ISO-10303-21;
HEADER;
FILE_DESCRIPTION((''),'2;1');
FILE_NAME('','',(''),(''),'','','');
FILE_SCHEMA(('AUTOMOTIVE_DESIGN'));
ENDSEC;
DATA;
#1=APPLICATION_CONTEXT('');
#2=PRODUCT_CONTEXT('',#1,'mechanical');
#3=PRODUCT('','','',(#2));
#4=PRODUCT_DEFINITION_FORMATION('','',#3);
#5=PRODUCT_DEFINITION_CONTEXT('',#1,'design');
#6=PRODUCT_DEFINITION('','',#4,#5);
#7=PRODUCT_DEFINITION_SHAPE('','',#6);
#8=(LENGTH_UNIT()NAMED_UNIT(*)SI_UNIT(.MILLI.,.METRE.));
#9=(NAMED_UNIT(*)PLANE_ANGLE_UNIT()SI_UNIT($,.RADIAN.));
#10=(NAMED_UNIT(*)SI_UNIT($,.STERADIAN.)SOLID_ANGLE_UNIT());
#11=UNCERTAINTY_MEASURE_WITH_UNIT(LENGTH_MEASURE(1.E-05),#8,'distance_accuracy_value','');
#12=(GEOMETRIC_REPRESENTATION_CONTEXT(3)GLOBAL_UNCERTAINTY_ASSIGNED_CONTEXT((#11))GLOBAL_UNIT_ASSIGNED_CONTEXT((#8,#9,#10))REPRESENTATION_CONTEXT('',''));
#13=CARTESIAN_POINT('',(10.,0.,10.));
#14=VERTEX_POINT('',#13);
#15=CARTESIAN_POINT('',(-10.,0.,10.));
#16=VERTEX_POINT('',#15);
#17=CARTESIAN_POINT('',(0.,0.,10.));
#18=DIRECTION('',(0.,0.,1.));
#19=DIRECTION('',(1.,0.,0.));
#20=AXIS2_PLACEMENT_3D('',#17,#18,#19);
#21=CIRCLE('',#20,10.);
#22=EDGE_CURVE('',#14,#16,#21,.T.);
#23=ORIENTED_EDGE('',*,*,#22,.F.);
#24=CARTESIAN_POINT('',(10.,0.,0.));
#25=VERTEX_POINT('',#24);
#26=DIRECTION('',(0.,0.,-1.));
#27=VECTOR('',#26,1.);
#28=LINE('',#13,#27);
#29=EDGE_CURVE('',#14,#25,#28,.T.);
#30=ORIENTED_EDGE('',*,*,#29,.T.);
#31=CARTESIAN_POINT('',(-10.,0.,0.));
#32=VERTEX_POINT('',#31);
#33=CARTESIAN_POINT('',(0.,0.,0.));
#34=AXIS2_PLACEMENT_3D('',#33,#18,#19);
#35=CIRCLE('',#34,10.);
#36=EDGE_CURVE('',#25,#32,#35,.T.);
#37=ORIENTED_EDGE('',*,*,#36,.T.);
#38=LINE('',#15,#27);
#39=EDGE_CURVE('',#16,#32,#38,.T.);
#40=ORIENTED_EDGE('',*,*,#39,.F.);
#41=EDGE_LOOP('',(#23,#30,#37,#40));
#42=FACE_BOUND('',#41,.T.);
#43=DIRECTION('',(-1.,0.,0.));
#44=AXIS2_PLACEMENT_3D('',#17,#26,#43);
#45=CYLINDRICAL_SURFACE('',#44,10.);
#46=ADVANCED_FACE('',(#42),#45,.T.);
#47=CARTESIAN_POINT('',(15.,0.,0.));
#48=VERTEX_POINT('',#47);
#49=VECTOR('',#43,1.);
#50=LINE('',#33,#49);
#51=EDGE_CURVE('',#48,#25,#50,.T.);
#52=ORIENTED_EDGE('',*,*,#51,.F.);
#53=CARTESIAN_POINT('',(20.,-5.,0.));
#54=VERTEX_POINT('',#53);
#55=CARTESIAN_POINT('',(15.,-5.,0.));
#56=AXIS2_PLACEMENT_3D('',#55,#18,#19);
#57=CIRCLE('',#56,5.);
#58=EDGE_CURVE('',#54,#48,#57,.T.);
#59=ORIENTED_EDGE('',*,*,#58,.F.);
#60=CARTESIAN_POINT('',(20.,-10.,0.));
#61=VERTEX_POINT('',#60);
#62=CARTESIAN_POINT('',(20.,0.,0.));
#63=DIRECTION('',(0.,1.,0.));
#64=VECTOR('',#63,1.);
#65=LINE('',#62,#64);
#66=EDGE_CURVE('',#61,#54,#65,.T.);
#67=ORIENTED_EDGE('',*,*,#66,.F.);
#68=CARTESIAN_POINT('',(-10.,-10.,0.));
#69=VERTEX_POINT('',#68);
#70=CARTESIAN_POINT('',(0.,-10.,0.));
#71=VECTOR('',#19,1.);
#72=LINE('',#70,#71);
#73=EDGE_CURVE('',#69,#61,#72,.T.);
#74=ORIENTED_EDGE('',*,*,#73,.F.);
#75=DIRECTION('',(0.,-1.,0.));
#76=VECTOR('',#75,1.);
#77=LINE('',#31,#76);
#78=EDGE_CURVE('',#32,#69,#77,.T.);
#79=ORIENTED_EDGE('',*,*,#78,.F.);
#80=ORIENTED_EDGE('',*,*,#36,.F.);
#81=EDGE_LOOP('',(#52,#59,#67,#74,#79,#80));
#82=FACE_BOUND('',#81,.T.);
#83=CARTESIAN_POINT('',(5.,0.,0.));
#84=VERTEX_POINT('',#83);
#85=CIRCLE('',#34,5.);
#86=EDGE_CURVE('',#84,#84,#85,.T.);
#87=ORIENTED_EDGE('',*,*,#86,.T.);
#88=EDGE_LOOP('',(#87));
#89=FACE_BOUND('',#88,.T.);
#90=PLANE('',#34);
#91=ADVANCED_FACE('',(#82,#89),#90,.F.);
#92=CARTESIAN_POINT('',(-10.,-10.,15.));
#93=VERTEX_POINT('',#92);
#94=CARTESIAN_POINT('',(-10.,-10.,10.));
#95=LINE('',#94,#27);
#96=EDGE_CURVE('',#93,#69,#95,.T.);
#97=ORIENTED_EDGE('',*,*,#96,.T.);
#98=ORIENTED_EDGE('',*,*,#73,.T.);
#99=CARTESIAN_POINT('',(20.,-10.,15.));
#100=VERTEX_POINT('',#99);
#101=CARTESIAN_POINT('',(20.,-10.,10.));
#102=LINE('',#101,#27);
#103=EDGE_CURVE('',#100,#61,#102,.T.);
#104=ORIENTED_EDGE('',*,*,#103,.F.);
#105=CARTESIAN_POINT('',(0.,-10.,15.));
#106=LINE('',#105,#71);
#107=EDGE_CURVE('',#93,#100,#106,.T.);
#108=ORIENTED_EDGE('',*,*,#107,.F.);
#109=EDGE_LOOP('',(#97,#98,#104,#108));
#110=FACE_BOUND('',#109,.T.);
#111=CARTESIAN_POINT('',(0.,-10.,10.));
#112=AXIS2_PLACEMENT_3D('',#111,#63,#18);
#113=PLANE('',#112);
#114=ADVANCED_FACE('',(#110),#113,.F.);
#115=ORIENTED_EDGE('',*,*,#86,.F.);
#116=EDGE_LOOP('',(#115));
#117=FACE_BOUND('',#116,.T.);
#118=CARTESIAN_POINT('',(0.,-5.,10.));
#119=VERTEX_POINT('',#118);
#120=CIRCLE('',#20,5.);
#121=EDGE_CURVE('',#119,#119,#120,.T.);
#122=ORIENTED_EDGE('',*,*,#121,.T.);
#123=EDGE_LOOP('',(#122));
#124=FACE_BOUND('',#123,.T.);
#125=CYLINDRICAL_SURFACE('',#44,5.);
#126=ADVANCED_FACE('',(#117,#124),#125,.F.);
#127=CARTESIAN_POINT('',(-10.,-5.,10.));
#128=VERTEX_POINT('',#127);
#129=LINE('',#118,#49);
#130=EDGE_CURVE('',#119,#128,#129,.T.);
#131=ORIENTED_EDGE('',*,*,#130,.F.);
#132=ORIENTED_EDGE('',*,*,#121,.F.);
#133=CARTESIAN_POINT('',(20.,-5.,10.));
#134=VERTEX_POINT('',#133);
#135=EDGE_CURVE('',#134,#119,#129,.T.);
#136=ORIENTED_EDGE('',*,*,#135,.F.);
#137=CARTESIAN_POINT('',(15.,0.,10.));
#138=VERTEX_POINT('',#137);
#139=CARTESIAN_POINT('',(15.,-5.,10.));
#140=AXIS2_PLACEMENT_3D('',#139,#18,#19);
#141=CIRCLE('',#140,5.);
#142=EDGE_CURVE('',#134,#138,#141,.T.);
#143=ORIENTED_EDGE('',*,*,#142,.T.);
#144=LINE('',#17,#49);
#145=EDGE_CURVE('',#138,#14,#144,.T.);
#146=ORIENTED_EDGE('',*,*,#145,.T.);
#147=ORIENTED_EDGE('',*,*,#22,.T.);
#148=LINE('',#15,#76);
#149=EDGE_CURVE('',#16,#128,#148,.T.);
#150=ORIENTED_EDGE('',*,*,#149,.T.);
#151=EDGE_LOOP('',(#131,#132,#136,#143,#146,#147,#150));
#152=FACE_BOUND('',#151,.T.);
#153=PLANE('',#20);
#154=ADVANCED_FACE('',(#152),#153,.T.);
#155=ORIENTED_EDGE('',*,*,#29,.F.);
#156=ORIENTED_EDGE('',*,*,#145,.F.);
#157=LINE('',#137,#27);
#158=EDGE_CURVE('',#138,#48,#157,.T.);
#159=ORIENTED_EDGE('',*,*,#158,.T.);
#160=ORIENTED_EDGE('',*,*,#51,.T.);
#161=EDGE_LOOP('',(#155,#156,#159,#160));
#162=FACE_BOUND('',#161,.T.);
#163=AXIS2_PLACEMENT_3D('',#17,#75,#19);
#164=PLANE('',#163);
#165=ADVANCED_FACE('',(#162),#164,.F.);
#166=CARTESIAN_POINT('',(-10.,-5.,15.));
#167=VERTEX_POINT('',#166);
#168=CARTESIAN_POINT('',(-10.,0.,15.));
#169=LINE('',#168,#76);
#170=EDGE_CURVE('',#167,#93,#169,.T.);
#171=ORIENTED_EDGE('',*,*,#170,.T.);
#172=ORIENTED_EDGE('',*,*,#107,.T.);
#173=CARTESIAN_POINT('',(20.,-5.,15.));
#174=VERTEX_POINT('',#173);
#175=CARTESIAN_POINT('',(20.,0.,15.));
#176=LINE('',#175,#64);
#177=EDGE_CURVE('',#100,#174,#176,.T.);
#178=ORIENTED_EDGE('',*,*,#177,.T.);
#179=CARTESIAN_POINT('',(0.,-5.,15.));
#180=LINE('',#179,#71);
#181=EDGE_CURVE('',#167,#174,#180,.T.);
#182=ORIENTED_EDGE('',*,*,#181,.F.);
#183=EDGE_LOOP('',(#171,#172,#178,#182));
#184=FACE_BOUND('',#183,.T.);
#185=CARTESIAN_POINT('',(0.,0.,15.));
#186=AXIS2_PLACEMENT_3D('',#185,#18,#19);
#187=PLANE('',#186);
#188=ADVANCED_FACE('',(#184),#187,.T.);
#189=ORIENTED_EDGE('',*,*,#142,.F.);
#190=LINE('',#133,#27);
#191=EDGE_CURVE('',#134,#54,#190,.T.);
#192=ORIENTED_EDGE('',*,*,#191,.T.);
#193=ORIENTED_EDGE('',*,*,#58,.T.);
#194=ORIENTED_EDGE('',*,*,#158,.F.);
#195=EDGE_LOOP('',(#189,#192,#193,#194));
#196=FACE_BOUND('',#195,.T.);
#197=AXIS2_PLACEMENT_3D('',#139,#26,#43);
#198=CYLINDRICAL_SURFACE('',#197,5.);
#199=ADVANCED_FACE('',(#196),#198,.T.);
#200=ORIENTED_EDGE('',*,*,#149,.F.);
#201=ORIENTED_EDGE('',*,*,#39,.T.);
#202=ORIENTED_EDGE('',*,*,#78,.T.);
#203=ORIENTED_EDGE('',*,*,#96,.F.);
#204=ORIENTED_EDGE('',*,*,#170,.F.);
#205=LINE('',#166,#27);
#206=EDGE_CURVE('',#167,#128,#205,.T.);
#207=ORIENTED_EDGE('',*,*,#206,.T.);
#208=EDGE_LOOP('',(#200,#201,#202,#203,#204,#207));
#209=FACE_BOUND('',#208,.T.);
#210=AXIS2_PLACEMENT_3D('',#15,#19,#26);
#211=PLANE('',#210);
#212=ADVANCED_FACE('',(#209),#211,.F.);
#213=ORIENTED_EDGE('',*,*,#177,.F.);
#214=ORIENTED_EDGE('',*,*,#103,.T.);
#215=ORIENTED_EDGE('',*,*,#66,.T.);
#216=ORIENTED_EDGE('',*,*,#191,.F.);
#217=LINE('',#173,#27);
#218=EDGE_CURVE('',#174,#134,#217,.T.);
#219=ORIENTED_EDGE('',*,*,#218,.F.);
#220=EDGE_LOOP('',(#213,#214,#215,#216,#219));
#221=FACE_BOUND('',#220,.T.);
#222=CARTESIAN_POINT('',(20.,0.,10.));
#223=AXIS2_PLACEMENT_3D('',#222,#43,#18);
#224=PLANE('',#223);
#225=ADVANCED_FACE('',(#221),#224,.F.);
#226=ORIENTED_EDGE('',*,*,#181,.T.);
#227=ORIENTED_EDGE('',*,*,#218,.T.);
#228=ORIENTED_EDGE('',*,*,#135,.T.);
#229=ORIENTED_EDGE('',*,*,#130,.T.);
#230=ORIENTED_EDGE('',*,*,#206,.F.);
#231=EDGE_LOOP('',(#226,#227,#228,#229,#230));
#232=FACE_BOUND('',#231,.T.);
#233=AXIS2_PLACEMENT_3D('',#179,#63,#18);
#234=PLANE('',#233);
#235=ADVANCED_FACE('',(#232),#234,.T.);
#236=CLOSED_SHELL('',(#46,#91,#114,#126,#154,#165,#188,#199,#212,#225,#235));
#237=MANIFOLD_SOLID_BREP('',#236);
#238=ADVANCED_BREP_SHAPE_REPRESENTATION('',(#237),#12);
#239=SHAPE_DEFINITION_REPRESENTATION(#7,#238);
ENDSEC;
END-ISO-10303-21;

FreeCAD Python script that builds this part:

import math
import FreeCAD as App
import Part
import Sketcher
from FreeCAD import Vector

doc = App.newDocument("Part")
body = doc.addObject("PartDesign::Body", "Body")

# Sketch on XY plane
sketch1 = body.newObject("Sketcher::SketchObject", "Sketch")
sketch1.AttachmentSupport = (doc.getObject("XY_Plane"), [""])
sketch1.MapMode = "FlatFace"
sketch1.addGeometry(Part.LineSegment(Vector(-10, 0, 0), Vector(-10, -10, 0)), False)
sketch1.addGeometry(Part.LineSegment(Vector(-10, -10, 0), Vector(20, -10, 0)), False)
sketch1.addGeometry(Part.LineSegment(Vector(20, -10, 0), Vector(20, -5, 0)), False)
sketch1.addGeometry(Part.ArcOfCircle(Part.Circle(Vector(15, -5, 0), Vector(0, 0, 1), 5), math.radians(0), math.radians(90)), False)
sketch1.addGeometry(Part.LineSegment(Vector(15, 0, 0), Vector(10, 0, 0)), False)
sketch1.addGeometry(Part.ArcOfCircle(Part.Circle(Vector(0, 0, 0), Vector(0, 0, 1), 10), math.radians(0), math.radians(180)), False)
sketch1.addGeometry(Part.Circle(Vector(0, 0, 0), Vector(0, 0, 1), 5), False)
sketch1.addConstraint(Sketcher.Constraint("Coincident", 0, 2, 1, 1))
sketch1.addConstraint(Sketcher.Constraint("Coincident", 1, 2, 2, 1))
sketch1.addConstraint(Sketcher.Constraint("Tangent", 2, 2, 3, 1))
sketch1.addConstraint(Sketcher.Constraint("Tangent", 3, 2, 4, 1))
sketch1.addConstraint(Sketcher.Constraint("Coincident", 4, 2, 5, 1))
sketch1.addConstraint(Sketcher.Constraint("Tangent", 5, 2, 0, 1))
sketch1.addConstraint(Sketcher.Constraint("Vertical", 0))
sketch1.addConstraint(Sketcher.Constraint("Horizontal", 1))
sketch1.addConstraint(Sketcher.Constraint("Vertical", 2))
sketch1.addConstraint(Sketcher.Constraint("Horizontal", 4))
sketch1.addConstraint(Sketcher.Constraint("Coincident", 5, 3, -1, 1))
sketch1.addConstraint(Sketcher.Constraint("Coincident", 6, 3, -1, 1))
sketch1.addConstraint(Sketcher.Constraint("Equal", 3, 6))
sketch1.addConstraint(Sketcher.Constraint("PointOnObject", 3, 2, -1))
sketch1.addConstraint(Sketcher.Constraint("Equal", 4, 2))
sketch1.addConstraint(Sketcher.Constraint("Diameter", 6, 10.0))
sketch1.addConstraint(Sketcher.Constraint("Radius", 5, 10.0))
sketch1.addConstraint(Sketcher.Constraint("DistanceX", 1, 1, 1, 2, 30.0))
pad1 = body.newObject("PartDesign::Pad", "Pad")
pad1.Profile = sketch1
pad1.Length = 10

# Sketch on XY plane
sketch2 = body.newObject("Sketcher::SketchObject", "Sketch001")
sketch2.AttachmentSupport = (doc.getObject("XY_Plane"), [""])
sketch2.MapMode = "FlatFace"
sketch2.addGeometry(Part.LineSegment(Vector(-10, -5, 0), Vector(-10, -10, 0)), False)
sketch2.addGeometry(Part.LineSegment(Vector(-10, -10, 0), Vector(20, -10, 0)), False)
sketch2.addGeometry(Part.LineSegment(Vector(20, -10, 0), Vector(20, -5, 0)), False)
sketch2.addGeometry(Part.LineSegment(Vector(20, -5, 0), Vector(-10, -5, 0)), False)
sketch2.addConstraint(Sketcher.Constraint("Coincident", 0, 2, 1, 1))
sketch2.addConstraint(Sketcher.Constraint("Coincident", 1, 2, 2, 1))
sketch2.addConstraint(Sketcher.Constraint("Coincident", 2, 2, 3, 1))
sketch2.addConstraint(Sketcher.Constraint("Coincident", 3, 2, 0, 1))
sketch2.addConstraint(Sketcher.Constraint("Vertical", 0))
sketch2.addConstraint(Sketcher.Constraint("Horizontal", 1))
sketch2.addConstraint(Sketcher.Constraint("Vertical", 2))
sketch2.addConstraint(Sketcher.Constraint("Horizontal", 3))
sketch2.addConstraint(Sketcher.Constraint("DistanceX", 1, 1, 1, 2, 30.0))
sketch2.addConstraint(Sketcher.Constraint("DistanceY", 0, 2, 0, 1, 5.0))
sketch2.addConstraint(Sketcher.Constraint("DistanceX", 0, 2, -1, 1, 10.0))
sketch2.addConstraint(Sketcher.Constraint("DistanceY", 0, 2, -1, 1, 10.0))
pad2 = body.newObject("PartDesign::Pad", "Pad001")
pad2.Profile = sketch2
pad2.Length = 15

doc.recompute()
